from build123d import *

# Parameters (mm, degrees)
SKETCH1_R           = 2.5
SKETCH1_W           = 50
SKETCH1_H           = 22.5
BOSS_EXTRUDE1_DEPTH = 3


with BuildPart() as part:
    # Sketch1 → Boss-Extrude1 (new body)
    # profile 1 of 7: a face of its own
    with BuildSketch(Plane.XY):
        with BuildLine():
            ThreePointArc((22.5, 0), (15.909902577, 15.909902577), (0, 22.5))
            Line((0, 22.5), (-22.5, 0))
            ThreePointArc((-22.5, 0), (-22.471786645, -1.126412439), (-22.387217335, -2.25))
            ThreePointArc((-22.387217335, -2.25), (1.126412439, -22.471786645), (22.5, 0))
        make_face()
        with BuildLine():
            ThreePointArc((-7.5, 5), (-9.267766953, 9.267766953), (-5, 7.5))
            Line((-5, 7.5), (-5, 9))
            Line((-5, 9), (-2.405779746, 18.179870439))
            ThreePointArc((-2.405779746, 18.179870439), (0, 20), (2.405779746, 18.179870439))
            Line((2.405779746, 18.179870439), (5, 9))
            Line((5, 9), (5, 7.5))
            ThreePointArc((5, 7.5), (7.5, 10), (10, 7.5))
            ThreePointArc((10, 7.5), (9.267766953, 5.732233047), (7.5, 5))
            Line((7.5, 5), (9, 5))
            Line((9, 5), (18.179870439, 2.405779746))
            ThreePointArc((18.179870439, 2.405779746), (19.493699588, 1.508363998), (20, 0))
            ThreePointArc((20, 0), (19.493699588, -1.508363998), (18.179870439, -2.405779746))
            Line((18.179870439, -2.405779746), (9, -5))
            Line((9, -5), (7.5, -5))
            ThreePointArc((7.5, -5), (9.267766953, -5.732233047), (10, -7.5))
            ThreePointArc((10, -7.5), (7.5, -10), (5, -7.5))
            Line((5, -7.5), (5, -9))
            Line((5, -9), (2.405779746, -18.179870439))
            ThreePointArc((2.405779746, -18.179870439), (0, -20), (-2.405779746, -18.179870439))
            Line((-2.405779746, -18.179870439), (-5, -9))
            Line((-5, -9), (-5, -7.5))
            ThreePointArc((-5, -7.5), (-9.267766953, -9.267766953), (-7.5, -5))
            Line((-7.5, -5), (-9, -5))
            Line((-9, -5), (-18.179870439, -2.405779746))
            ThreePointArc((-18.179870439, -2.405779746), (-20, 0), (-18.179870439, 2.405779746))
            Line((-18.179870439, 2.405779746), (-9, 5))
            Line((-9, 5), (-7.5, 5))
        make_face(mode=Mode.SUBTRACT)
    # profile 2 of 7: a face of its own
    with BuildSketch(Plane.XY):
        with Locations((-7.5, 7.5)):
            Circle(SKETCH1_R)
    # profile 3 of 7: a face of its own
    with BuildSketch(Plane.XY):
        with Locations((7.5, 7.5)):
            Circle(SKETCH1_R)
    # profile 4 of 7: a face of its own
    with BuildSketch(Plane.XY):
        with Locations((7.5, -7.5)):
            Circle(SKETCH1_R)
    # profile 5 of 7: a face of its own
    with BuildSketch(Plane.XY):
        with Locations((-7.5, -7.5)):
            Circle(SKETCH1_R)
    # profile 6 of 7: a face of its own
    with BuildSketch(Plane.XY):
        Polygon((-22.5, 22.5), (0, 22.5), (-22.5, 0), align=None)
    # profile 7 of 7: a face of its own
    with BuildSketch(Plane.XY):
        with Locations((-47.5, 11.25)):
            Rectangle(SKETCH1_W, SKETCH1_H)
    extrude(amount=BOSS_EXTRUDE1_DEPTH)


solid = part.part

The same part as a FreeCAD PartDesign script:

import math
import FreeCAD as App
import Part
import Sketcher

V = App.Vector

doc = App.newDocument("Part")
params = doc.addObject("Spreadsheet::Sheet", "Params")
for row, (alias, value) in enumerate([
    ("sketch1_radius", "22.5 mm"),
    ("sketch1_radius2", "2.5 mm"),
    ("sketch1_width", "50 mm"),
    ("sketch1_width2", "1.5 mm"),
    ("pad1_length", "3 mm"),
], start=1):
    params.set(f"A{row}", alias)
    params.set(f"B{row}", "=" + value)
    params.setAlias(f"B{row}", alias)

body = doc.addObject("PartDesign::Body", "Body")

# Sketch on XY plane
sketch1 = body.newObject("Sketcher::SketchObject", "Sketch")
sketch1.AttachmentSupport = (doc.getObject("XY_Plane"), [""])
sketch1.MapMode = "FlatFace"
sketch1.addGeometry([
    Part.ArcOfCircle(Part.Circle(V(0, 0, 0), V(0, 0, 1), 22.5), math.radians(0), math.radians(90)),  # 0
    Part.LineSegment(V(0, 22.5, 0), V(-72.5, 22.5, 0)),  # 1
    Part.LineSegment(V(-72.5, 22.5, 0), V(-72.5, 0, 0)),  # 2
    Part.LineSegment(V(-72.5, 0, 0), V(-22.5, 0, 0)),  # 3
    Part.ArcOfCircle(Part.Circle(V(0, 0, 0), V(0, 0, 1), 22.5), math.radians(180), math.radians(185.74)),  # 4
    Part.ArcOfCircle(Part.Circle(V(0, 0, 0), V(0, 0, 1), 22.5), math.radians(-174), math.radians(0)),  # 5
    Part.LineSegment(V(-9, 5, 0), V(-7.5, 5, 0)),  # 6
    Part.ArcOfCircle(Part.Circle(V(-7.5, 7.5, 0), V(0, 0, 1), 2.5), math.radians(-90), math.radians(0)),  # 7
    Part.LineSegment(V(-5, 7.5, 0), V(-5, 9, 0)),  # 8
    Part.LineSegment(V(-5, 9, 0), V(-2.4, 18.2, 0)),  # 9
    Part.ArcOfCircle(Part.Circle(V(0, 17.5, 0), V(0, 0, 1), 2.5), math.radians(16), math.radians(164)),  # 10
    Part.LineSegment(V(2.4, 18.2, 0), V(5, 9, 0)),  # 11
    Part.LineSegment(V(5, 9, 0), V(5, 7.5, 0)),  # 12
    Part.ArcOfCircle(Part.Circle(V(7.5, 7.5, 0), V(0, 0, 1), 2.5), math.radians(180), math.radians(270)),  # 13
    Part.LineSegment(V(7.5, 5, 0), V(9, 5, 0)),  # 14
    Part.LineSegment(V(9, 5, 0), V(18.2, 2.4, 0)),  # 15
    Part.ArcOfCircle(Part.Circle(V(17.5, 0, 0), V(0, 0, 1), 2.5), math.radians(0), math.radians(74)),  # 16
    Part.ArcOfCircle(Part.Circle(V(17.5, 0, 0), V(0, 0, 1), 2.5), math.radians(-74), math.radians(0)),  # 17
    Part.LineSegment(V(18.2, -2.4, 0), V(9, -5, 0)),  # 18
    Part.LineSegment(V(9, -5, 0), V(7.5, -5, 0)),  # 19
    Part.ArcOfCircle(Part.Circle(V(7.5, -7.5, 0), V(0, 0, 1), 2.5), math.radians(90), math.radians(180)),  # 20
    Part.LineSegment(V(5, -7.5, 0), V(5, -9, 0)),  # 21
    Part.LineSegment(V(5, -9, 0), V(2.4, -18.2, 0)),  # 22
    Part.ArcOfCircle(Part.Circle(V(0, -17.5, 0), V(0, 0, 1), 2.5), math.radians(-164), math.radians(-16)),  # 23
    Part.LineSegment(V(-2.4, -18.2, 0), V(-5, -9, 0)),  # 24
    Part.LineSegment(V(-5, -9, 0), V(-5, -7.5, 0)),  # 25
    Part.ArcOfCircle(Part.Circle(V(-7.5, -7.5, 0), V(0, 0, 1), 2.5), math.radians(0), math.radians(90)),  # 26
    Part.LineSegment(V(-7.5, -5, 0), V(-9, -5, 0)),  # 27
    Part.LineSegment(V(-9, -5, 0), V(-18.2, -2.4, 0)),  # 28
    Part.ArcOfCircle(Part.Circle(V(-17.5, 0, 0), V(0, 0, 1), 2.5), math.radians(106), math.radians(254)),  # 29
    Part.LineSegment(V(-18.2, 2.4, 0), V(-9, 5, 0)),  # 30
], False)
sketch1.addConstraint([
    Sketcher.Constraint("Tangent", 0, 2, 1, 1),
    Sketcher.Constraint("Coincident", 1, 2, 2, 1),
    Sketcher.Constraint("Coincident", 2, 2, 3, 1),
    Sketcher.Constraint("Coincident", 3, 2, 4, 1),
    Sketcher.Constraint("Tangent", 4, 2, 5, 1),
    Sketcher.Constraint("Tangent", 5, 2, 0, 1),
    Sketcher.Constraint("Tangent", 6, 2, 7, 1),
    Sketcher.Constraint("Tangent", 7, 2, 8, 1),
    Sketcher.Constraint("Coincident", 8, 2, 9, 1),
    Sketcher.Constraint("Tangent", 9, 2, 10, 2),
    Sketcher.Constraint("Tangent", 10, 1, 11, 1),
    Sketcher.Constraint("Coincident", 11, 2, 12, 1),
    Sketcher.Constraint("Tangent", 12, 2, 13, 1),
    Sketcher.Constraint("Tangent", 13, 2, 14, 1),
    Sketcher.Constraint("Coincident", 14, 2, 15, 1),
    Sketcher.Constraint("Tangent", 15, 2, 16, 2),
    Sketcher.Constraint("Tangent", 16, 1, 17, 2),
    Sketcher.Constraint("Tangent", 17, 1, 18, 1),
    Sketcher.Constraint("Coincident", 18, 2, 19, 1),
    Sketcher.Constraint("Tangent", 19, 2, 20, 1),
    Sketcher.Constraint("Tangent", 20, 2, 21, 1),
    Sketcher.Constraint("Coincident", 21, 2, 22, 1),
    Sketcher.Constraint("Tangent", 22, 2, 23, 2),
    Sketcher.Constraint("Tangent", 23, 1, 24, 1),
    Sketcher.Constraint("Coincident", 24, 2, 25, 1),
    Sketcher.Constraint("Tangent", 25, 2, 26, 1),
    Sketcher.Constraint("Tangent", 26, 2, 27, 1),
    Sketcher.Constraint("Coincident", 27, 2, 28, 1),
    Sketcher.Constraint("Tangent", 28, 2, 29, 2),
    Sketcher.Constraint("Tangent", 29, 1, 30, 1),
    Sketcher.Constraint("Coincident", 30, 2, 6, 1),
    Sketcher.Constraint("Horizontal", 1),
    Sketcher.Constraint("Vertical", 2),
    Sketcher.Constraint("Horizontal", 3),
    Sketcher.Constraint("Horizontal", 6),
    Sketcher.Constraint("Vertical", 8),
    Sketcher.Constraint("Vertical", 12),
    Sketcher.Constraint("Horizontal", 14),
    Sketcher.Constraint("Horizontal", 19),
    Sketcher.Constraint("Vertical", 21),
    Sketcher.Constraint("Vertical", 25),
    Sketcher.Constraint("Horizontal", 27),
    Sketcher.Constraint("Coincident", 0, 3, -1, 1),
    Sketcher.Constraint("Coincident", 4, 3, -1, 1),
    Sketcher.Constraint("Equal", 7, 10),
    Sketcher.Constraint("Equal", 10, 13),
    Sketcher.Constraint("Equal", 13, 16),
    Sketcher.Constraint("Equal", 16, 17),
    Sketcher.Constraint("Equal", 17, 20),
    Sketcher.Constraint("Equal", 20, 23),
    Sketcher.Constraint("Equal", 23, 26),
    Sketcher.Constraint("Equal", 26, 29),
    Sketcher.Constraint("Symmetric", 7, 3, 20, 3, -1, 1),
    Sketcher.Constraint("Symmetric", 10, 3, 23, 3, -1, 1),
    Sketcher.Constraint("Symmetric", 13, 3, 26, 3, -1, 1),
    Sketcher.Constraint("Symmetric", 16, 3, 29, 3, -1, 1),
    Sketcher.Constraint("Symmetric", 7, 3, 13, 3, -2),
    Sketcher.Constraint("Symmetric", 9, 2, 10, 1, -2),
    Sketcher.Constraint("Symmetric", 17, 1, 28, 2, -2),
    Sketcher.Constraint("PointOnObject", 2, 2, -1),
    Sketcher.Constraint("PointOnObject", 5, 2, -1),
    Sketcher.Constraint("PointOnObject", 16, 1, -1),
    Sketcher.Constraint("Perpendicular", 9, 15),
    Sketcher.Constraint("Perpendicular", 11, 18),
    Sketcher.Constraint("Perpendicular", 15, 22),
    Sketcher.Constraint("Perpendicular", 18, 24),
    Sketcher.Constraint("Perpendicular", 24, 30),
    Sketcher.Constraint("Equal", 27, 8),
    Sketcher.Constraint("Equal", 11, 15),
    Sketcher.Constraint("Radius", 0, 22.5),
    Sketcher.Constraint("Radius", 7, 2.5),
    Sketcher.Constraint("DistanceX", 3, 1, 3, 2, 50.0),
    Sketcher.Constraint("DistanceX", 6, 1, 6, 2, 1.5),
    Sketcher.Constraint("DistanceY", -1, 1, 6, 2, 5.0),
    Sketcher.Constraint("DistanceX", -1, 1, 16, 1, 20.0),
    Sketcher.Constraint("DistanceY", 4, 2, -1, 1, 2.25),
])
sketch1.setExpression("Constraints[69]", "Params.sketch1_radius")
sketch1.setExpression("Constraints[70]", "Params.sketch1_radius2")
sketch1.setExpression("Constraints[71]", "Params.sketch1_width")
sketch1.setExpression("Constraints[72]", "Params.sketch1_width2")
pad1 = body.newObject("PartDesign::Pad", "Pad")
pad1.Profile = sketch1
pad1.setExpression("Length", "Params.pad1_length")

doc.recompute()
